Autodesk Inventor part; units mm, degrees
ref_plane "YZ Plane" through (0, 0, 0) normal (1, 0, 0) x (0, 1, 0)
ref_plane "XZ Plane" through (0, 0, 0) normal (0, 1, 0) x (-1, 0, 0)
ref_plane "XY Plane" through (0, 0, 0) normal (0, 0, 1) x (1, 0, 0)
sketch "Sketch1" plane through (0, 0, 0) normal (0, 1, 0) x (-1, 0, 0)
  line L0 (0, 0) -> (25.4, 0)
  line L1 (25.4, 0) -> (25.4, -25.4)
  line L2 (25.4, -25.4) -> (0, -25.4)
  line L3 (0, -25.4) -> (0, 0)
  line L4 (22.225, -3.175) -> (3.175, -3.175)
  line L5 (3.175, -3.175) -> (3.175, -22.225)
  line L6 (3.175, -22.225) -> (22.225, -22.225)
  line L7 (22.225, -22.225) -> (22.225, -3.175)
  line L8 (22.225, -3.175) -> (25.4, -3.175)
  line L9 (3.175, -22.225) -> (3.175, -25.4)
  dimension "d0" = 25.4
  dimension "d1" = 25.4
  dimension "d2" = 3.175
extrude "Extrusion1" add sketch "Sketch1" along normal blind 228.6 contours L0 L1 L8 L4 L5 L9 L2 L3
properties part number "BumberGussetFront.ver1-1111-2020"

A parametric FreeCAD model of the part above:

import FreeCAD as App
import Part
import Sketcher

V = App.Vector
Q = App.Units.Quantity


def add_polygon(sketch, points):
    """Adds a closed chain of lines whose ends are joined by coincident constraints."""
    first, n = sketch.GeometryCount, len(points)
    for a, b in zip(points, points[1:] + points[:1]):
        sketch.addGeometry(Part.LineSegment(App.Vector(*a, 0), App.Vector(*b, 0)), False)
    for i in range(n):
        sketch.addConstraint(Sketcher.Constraint("Coincident", first + i, 2, first + (i + 1) % n, 1))

doc = App.newDocument("Part")
body = doc.addObject("PartDesign::Body", "Body")

# Sketch on XZ plane
sketch1 = body.newObject("Sketcher::SketchObject", "Sketch")
sketch1.AttachmentSupport = (doc.getObject("XZ_Plane"), [""])
sketch1.MapMode = "FlatFace"
add_polygon(sketch1, [(-25.4, 0), (0, 0), (0, -25.4), (-3.175, -25.4), (-3.175, -3.175), (-25.4, -3.175)])  # lines 0-5
sketch1.addConstraint([
    Sketcher.Constraint("Horizontal", 0),
    Sketcher.Constraint("Vertical", 1),
    Sketcher.Constraint("Horizontal", 2),
    Sketcher.Constraint("Vertical", 3),
    Sketcher.Constraint("Horizontal", 4),
    Sketcher.Constraint("Vertical", 5),
    Sketcher.Constraint("Coincident", 0, 2, -1, 1),
    Sketcher.Constraint("Equal", 0, 1),
    Sketcher.Constraint("Equal", 4, 3),
    Sketcher.Constraint("DistanceX", 0, 1, 0, 2, Q("1 in")),
    Sketcher.Constraint("DistanceX", 2, 2, 2, 1, Q("0.125 in")),
])
pad1 = body.newObject("PartDesign::Pad", "Pad")
pad1.Profile = sketch1
pad1.Length = Q("9 in")
pad1.Reversed = True

doc.recompute()
